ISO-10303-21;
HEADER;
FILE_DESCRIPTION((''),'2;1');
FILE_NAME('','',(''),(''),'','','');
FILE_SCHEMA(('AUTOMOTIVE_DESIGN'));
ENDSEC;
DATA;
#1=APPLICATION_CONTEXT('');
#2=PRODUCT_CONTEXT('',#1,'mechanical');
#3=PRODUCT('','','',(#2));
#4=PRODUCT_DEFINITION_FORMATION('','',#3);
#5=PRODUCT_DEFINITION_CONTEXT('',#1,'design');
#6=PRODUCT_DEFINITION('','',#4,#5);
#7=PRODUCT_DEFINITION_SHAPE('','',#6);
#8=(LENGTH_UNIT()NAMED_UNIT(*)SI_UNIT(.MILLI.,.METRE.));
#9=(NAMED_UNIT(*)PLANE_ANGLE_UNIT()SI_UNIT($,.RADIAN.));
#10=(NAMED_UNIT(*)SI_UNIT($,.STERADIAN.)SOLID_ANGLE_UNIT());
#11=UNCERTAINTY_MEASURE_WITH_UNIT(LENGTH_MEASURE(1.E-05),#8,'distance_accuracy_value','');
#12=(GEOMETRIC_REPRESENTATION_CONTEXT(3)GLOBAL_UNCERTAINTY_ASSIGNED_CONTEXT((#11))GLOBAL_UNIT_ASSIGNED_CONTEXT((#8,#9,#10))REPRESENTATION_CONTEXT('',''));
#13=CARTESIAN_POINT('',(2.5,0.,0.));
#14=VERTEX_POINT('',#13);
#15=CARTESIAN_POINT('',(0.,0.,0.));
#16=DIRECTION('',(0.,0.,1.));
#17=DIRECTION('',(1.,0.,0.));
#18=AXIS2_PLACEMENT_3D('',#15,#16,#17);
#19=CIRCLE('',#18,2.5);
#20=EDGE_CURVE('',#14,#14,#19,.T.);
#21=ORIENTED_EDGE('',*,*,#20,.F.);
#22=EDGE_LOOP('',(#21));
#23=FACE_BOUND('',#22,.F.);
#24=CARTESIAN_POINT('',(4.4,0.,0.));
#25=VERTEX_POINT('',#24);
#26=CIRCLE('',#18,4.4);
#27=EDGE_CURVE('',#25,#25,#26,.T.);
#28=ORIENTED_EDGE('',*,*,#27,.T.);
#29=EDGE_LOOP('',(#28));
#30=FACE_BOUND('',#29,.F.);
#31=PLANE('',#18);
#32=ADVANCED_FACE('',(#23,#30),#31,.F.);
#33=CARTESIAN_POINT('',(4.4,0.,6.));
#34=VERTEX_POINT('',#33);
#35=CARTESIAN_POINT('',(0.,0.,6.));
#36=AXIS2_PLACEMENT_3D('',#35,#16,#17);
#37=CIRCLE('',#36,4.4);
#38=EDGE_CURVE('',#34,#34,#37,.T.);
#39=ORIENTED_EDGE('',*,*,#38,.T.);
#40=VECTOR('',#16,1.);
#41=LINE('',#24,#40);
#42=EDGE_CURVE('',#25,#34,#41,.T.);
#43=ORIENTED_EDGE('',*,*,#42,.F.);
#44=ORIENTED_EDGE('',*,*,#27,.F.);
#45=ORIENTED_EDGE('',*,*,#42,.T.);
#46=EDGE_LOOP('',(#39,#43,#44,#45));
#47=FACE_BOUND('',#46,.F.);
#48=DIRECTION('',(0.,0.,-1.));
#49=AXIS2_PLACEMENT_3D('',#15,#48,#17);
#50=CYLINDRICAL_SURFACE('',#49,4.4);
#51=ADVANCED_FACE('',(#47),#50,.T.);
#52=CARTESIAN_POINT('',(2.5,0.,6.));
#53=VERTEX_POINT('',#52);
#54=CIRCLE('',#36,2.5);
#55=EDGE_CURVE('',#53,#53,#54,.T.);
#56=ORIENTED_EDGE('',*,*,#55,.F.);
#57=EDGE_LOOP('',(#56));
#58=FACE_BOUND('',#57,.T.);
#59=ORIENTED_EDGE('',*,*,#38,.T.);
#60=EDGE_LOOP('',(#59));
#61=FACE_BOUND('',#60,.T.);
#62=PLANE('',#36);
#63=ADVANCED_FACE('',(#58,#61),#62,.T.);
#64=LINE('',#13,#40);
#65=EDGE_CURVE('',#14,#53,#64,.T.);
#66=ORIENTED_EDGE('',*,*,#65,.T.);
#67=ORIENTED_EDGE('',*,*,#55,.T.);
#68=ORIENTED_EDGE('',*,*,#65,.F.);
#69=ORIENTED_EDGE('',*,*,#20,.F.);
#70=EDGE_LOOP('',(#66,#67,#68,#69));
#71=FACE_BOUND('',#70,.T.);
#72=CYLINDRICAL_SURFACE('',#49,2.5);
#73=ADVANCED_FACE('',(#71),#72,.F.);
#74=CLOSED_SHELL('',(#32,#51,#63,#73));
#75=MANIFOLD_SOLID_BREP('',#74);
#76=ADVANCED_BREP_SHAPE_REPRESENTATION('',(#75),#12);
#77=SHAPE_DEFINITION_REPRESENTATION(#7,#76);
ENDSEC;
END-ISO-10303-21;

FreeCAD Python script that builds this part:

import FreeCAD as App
import Part
import Sketcher
from FreeCAD import Vector
Q = App.Units.Quantity

doc = App.newDocument("Part")
body = doc.addObject("PartDesign::Body", "Body")

sketch1 = body.newObject("Sketcher::SketchObject", "Sketch")
sketch1.AttachmentSupport = (doc.getObject("XY_Plane"), [""])
sketch1.MapMode = "FlatFace"
sketch1.addGeometry([
    Part.Circle(Vector(0, 0, 0), Vector(0, 0, 1), 4.4),
    Part.Circle(Vector(0, 0, 0), Vector(0, 0, 1), 2.5),
], False)
sketch1.addConstraint([
    Sketcher.Constraint("Coincident", 0, 3, -1, 1),
    Sketcher.Constraint("Coincident", 1, 3, -1, 1),
    Sketcher.Constraint("Diameter", 1, Q("5 mm")),
    Sketcher.Constraint("Diameter", 0, Q("8.8 mm")),
])
pad1 = body.newObject("PartDesign::Pad", "Pad")
pad1.Profile = sketch1
pad1.Length = 6

doc.recompute()
